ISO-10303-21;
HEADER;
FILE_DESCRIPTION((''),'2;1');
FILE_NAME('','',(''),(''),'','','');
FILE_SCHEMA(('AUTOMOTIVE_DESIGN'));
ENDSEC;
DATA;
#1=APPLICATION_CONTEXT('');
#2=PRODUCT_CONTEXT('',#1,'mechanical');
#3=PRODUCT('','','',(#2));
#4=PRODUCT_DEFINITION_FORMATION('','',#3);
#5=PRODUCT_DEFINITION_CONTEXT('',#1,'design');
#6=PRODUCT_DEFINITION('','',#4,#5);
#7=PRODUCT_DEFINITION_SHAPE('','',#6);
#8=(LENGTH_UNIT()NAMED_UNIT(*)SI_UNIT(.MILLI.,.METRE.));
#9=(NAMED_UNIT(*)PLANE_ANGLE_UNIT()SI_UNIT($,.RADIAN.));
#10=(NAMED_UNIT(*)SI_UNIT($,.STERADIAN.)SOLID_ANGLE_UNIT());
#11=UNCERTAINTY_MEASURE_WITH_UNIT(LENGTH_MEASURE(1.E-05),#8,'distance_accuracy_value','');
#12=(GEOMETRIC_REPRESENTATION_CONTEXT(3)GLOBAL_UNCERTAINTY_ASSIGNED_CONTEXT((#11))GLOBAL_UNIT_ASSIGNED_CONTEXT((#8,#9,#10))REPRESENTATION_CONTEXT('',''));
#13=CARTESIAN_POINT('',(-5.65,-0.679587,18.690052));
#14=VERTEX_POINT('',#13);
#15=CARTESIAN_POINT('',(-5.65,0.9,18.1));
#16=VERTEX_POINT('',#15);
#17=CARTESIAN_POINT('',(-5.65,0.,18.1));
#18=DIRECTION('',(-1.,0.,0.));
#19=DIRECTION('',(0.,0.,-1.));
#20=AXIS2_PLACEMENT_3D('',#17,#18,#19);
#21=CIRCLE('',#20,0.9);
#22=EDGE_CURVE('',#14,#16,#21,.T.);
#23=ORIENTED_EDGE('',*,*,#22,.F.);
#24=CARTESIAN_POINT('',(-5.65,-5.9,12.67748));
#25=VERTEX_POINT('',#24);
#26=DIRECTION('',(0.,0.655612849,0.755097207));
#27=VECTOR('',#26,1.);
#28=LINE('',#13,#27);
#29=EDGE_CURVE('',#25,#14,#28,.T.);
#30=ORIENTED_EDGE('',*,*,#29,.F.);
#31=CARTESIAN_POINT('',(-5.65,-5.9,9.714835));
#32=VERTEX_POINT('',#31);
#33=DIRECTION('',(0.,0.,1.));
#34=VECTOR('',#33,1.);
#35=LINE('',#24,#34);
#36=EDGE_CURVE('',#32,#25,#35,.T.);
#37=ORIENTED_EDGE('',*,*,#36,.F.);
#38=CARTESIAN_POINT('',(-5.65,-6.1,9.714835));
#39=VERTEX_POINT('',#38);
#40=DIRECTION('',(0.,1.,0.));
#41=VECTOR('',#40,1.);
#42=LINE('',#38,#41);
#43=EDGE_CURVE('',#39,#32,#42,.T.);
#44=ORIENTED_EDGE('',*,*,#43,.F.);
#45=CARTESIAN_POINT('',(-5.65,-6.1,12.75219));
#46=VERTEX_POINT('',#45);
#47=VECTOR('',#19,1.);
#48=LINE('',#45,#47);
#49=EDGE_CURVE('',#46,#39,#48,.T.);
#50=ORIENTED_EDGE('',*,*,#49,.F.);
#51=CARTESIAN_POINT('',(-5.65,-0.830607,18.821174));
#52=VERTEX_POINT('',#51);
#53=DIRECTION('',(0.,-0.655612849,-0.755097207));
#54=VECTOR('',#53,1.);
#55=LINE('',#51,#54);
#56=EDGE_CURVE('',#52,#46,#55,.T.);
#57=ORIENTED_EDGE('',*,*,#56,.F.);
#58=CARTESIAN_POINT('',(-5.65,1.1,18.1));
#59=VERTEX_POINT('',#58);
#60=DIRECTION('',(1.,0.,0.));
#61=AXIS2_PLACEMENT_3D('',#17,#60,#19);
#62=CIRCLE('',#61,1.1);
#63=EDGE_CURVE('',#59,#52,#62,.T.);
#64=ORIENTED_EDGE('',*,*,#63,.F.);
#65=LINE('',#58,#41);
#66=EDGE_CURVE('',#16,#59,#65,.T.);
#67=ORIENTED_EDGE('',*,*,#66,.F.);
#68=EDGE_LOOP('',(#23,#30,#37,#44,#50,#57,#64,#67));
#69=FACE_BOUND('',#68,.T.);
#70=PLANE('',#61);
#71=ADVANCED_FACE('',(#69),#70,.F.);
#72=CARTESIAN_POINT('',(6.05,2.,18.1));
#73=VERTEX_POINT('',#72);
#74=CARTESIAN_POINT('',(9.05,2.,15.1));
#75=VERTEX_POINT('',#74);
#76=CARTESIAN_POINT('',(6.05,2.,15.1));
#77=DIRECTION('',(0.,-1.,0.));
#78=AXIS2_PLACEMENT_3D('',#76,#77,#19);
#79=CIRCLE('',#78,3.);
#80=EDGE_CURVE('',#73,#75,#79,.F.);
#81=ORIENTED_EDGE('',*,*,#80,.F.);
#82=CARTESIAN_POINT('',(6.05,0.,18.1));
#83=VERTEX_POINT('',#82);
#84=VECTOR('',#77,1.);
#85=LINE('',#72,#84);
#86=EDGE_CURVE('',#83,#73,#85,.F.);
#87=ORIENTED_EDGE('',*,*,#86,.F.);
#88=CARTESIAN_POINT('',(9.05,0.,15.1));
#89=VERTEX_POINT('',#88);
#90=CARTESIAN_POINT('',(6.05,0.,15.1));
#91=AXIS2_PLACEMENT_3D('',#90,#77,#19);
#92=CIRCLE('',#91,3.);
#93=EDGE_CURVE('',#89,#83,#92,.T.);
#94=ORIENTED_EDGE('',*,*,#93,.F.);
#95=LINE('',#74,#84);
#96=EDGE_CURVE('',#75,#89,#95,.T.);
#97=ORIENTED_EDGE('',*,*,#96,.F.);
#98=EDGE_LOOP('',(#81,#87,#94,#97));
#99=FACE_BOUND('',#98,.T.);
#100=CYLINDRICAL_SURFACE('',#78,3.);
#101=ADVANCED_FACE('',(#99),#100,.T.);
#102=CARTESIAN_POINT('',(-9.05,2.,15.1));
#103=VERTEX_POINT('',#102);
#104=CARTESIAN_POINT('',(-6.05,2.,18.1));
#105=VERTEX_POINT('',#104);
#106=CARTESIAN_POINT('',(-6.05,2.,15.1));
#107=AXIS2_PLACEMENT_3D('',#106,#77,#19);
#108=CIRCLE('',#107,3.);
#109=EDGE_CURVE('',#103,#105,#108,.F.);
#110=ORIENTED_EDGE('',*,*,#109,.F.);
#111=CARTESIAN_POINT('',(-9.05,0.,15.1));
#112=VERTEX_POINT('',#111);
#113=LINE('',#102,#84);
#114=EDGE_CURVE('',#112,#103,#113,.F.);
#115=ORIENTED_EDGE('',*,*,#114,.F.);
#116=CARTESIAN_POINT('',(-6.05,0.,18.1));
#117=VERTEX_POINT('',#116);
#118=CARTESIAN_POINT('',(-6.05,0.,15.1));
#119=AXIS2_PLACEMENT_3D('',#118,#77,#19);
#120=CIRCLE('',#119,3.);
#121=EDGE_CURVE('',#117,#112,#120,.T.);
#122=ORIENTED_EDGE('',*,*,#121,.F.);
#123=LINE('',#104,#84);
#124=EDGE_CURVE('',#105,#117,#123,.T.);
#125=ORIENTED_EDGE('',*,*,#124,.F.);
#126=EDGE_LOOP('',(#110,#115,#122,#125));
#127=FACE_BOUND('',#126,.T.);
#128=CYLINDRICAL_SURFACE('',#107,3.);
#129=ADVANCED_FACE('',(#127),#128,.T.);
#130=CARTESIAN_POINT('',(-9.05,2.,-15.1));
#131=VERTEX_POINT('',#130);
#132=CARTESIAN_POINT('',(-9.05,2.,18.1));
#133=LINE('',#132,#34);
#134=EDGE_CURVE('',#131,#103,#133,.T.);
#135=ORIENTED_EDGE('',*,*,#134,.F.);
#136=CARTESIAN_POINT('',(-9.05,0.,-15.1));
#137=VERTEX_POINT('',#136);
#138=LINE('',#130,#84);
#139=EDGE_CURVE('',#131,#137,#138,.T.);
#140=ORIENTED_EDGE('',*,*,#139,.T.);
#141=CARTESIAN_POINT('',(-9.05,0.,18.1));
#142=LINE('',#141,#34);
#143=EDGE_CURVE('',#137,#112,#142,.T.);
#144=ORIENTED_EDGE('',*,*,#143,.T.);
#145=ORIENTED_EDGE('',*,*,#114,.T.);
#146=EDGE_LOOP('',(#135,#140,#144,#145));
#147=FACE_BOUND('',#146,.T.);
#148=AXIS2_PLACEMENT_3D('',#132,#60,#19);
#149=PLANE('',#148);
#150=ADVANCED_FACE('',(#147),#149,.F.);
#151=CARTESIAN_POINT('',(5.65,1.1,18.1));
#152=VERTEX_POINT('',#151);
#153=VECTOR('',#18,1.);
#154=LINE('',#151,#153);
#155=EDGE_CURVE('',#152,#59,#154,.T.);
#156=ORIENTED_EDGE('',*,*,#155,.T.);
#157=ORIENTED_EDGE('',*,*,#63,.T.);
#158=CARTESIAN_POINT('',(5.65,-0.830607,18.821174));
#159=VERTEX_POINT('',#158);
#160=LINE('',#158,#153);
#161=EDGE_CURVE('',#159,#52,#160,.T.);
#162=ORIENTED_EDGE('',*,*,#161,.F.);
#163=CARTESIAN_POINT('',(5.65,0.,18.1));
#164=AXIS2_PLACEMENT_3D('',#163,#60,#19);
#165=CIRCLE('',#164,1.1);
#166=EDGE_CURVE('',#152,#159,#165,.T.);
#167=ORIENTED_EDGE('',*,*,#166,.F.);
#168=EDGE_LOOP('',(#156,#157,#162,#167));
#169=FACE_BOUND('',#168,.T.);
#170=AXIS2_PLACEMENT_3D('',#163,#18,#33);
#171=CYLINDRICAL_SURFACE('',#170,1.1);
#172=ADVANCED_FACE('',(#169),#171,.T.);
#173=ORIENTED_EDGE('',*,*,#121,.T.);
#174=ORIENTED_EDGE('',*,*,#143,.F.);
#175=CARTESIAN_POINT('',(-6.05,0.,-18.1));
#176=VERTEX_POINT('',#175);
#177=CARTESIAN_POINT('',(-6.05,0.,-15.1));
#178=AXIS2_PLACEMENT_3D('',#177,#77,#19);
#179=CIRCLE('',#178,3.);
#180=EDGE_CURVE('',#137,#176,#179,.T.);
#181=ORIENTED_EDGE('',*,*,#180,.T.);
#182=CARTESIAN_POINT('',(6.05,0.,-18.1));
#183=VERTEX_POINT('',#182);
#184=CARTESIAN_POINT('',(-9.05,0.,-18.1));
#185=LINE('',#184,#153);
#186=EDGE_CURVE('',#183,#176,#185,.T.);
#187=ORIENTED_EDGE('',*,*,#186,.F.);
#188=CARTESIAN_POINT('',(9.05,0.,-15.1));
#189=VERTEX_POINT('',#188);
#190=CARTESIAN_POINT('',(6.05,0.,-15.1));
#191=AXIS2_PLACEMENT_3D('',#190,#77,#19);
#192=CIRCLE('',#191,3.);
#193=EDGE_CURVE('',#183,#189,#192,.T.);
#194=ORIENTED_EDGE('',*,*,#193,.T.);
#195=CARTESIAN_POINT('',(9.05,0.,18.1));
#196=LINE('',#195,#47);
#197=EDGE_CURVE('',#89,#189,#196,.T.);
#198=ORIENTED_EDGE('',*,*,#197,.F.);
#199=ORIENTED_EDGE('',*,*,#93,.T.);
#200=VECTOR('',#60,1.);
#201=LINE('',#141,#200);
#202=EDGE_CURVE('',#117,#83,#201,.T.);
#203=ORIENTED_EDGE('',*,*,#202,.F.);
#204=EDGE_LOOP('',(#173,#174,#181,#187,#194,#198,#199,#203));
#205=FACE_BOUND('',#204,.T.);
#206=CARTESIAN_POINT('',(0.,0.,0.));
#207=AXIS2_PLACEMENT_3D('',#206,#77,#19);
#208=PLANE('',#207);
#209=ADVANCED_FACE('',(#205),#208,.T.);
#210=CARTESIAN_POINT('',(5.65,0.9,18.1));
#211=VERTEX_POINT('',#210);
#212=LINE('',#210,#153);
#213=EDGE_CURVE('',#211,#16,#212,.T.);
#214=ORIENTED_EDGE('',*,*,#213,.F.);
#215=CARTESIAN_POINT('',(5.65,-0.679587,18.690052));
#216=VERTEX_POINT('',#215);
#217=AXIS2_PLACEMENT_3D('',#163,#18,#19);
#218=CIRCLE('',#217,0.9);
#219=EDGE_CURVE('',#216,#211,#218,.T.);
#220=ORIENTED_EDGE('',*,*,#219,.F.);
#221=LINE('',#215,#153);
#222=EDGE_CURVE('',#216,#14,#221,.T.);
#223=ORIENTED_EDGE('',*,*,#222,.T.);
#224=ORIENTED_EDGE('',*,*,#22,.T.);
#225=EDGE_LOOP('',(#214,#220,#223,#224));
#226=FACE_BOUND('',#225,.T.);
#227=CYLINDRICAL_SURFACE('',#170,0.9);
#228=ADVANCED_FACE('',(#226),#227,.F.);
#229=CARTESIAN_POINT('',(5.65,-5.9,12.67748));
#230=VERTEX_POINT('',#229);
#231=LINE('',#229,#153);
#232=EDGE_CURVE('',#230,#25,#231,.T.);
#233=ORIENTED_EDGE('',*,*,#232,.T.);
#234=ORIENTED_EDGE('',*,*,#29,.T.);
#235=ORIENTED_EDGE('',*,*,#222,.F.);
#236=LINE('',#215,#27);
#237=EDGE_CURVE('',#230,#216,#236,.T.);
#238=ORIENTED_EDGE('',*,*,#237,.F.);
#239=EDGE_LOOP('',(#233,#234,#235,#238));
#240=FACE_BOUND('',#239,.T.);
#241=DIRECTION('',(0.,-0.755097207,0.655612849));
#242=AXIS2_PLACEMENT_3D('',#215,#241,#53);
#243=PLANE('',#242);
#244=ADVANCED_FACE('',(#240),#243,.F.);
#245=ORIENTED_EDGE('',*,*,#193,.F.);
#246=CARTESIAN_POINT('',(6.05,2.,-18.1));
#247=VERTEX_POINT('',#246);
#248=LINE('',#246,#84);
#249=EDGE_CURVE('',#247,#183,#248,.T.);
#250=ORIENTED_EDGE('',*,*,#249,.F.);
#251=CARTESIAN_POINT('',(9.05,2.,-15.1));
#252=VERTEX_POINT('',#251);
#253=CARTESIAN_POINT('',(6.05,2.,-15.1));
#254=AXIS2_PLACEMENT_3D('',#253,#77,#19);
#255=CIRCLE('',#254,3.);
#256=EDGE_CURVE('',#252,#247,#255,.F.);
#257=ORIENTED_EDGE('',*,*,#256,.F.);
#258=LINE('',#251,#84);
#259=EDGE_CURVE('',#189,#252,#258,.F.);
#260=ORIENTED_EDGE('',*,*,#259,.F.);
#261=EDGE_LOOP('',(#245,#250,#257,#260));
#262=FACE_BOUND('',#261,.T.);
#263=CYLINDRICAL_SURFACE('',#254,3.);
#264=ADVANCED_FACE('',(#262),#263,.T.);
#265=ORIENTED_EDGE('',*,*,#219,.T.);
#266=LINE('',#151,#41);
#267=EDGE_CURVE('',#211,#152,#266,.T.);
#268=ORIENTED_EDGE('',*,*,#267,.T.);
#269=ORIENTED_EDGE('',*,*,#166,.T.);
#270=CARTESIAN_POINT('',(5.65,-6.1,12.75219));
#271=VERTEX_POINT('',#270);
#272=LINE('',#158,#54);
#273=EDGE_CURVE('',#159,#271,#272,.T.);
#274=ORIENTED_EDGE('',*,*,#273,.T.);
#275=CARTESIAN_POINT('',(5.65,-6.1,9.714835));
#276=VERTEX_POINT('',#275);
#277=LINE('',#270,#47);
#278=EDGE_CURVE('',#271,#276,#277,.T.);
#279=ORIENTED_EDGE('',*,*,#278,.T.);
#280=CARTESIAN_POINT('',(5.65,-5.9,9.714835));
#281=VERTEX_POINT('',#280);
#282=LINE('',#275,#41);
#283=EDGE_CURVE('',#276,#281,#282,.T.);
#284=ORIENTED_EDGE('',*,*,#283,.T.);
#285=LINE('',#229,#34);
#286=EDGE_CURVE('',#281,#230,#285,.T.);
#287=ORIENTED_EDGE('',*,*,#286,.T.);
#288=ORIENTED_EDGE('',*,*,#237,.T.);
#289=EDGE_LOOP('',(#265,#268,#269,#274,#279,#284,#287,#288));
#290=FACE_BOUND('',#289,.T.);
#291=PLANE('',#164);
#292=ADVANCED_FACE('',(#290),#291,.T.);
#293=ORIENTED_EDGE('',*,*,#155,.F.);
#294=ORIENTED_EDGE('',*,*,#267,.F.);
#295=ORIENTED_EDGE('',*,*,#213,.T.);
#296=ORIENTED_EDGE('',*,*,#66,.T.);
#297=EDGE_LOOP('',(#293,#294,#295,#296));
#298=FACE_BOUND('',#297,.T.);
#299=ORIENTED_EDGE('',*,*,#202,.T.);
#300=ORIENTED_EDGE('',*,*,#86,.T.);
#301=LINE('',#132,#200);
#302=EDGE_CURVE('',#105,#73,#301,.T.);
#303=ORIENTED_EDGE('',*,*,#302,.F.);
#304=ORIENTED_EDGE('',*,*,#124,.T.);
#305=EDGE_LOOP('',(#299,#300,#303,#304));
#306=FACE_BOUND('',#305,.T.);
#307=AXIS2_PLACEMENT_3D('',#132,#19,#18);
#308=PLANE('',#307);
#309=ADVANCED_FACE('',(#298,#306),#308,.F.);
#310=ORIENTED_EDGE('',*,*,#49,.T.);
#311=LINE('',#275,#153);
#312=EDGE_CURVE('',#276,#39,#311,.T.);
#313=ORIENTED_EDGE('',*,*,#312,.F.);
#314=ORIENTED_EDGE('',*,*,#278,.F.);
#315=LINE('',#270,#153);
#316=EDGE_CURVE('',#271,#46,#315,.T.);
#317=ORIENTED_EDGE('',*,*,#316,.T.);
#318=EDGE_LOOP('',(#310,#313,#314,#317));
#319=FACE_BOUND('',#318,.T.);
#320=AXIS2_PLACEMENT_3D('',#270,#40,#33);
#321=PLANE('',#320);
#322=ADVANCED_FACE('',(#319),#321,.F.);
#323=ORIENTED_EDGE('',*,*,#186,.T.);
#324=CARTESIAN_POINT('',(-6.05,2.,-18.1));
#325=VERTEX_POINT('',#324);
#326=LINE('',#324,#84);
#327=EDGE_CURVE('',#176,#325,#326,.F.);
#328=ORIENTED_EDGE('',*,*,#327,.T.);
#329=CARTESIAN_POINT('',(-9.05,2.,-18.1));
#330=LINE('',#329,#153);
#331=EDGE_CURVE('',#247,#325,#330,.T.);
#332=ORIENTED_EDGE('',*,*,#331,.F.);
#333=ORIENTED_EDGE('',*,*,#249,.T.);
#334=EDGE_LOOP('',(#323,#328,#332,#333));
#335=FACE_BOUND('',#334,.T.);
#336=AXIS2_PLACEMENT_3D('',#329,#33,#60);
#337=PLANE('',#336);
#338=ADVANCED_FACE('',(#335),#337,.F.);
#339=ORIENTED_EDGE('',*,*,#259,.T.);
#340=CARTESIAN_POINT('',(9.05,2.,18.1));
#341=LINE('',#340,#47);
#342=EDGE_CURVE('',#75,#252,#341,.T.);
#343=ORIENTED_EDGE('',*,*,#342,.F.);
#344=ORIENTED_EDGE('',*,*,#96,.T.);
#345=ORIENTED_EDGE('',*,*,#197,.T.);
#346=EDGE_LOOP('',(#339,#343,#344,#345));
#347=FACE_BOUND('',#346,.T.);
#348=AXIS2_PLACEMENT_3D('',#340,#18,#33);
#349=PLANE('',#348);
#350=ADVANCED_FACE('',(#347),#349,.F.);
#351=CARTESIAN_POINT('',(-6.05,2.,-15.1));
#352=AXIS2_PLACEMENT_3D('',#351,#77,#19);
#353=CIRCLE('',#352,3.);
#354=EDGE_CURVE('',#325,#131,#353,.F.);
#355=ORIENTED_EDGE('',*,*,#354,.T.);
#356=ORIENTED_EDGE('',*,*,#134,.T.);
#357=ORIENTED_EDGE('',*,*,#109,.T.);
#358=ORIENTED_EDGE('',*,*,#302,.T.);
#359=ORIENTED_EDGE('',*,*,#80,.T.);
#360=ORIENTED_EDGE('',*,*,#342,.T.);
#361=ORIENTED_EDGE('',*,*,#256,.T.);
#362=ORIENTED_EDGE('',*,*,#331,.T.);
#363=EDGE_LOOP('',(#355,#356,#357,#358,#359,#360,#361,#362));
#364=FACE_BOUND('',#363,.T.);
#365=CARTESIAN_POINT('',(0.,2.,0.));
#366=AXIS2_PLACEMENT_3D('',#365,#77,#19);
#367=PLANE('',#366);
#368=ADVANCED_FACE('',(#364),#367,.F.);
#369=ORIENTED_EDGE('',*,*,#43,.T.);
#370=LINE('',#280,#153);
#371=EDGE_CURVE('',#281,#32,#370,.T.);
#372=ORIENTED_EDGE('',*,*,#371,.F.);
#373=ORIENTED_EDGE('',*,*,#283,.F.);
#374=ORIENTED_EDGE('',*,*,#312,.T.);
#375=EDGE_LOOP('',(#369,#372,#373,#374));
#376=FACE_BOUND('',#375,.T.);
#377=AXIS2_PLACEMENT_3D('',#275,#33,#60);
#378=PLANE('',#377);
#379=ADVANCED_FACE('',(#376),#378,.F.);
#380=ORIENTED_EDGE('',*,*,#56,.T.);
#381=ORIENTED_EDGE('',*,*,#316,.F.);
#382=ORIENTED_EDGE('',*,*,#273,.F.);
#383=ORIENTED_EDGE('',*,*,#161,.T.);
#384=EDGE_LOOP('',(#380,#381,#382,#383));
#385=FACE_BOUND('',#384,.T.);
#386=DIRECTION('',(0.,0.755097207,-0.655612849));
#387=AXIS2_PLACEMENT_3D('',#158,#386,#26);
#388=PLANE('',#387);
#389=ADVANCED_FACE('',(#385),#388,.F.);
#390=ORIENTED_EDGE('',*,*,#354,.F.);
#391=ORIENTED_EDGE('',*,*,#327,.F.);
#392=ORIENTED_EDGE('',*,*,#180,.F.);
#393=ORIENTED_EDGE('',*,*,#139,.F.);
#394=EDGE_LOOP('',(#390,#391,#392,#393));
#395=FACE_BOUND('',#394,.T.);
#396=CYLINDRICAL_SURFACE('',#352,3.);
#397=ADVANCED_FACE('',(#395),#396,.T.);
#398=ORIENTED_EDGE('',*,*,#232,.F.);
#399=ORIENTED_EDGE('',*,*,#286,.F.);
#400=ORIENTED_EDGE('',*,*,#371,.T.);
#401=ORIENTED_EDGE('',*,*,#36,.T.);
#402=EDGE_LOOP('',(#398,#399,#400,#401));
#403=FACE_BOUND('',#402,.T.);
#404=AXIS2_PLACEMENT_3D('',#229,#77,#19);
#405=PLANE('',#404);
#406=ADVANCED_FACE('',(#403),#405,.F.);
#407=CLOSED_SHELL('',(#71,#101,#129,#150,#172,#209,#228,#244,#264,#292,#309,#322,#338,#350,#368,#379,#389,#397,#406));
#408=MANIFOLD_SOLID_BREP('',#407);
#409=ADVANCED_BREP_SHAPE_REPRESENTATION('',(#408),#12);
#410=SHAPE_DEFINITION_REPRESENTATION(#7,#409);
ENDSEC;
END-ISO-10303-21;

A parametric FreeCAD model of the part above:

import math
import FreeCAD as App
import Part
import Sketcher
from FreeCAD import Vector
Q = App.Units.Quantity


def edges_at(feature, points):
    """Names of the edges that pass closest to the given points."""
    edges = feature.Shape.Edges
    near = lambda p: min(range(len(edges)), key=lambda i: edges[i].distToShape(Part.Vertex(*p))[0])
    return sorted({f"Edge{near(p) + 1}" for p in points})


def add_polygon(sketch, points):
    """Adds a closed chain of lines whose ends are joined by coincident constraints."""
    first, n = sketch.GeometryCount, len(points)
    for a, b in zip(points, points[1:] + points[:1]):
        sketch.addGeometry(Part.LineSegment(App.Vector(*a, 0), App.Vector(*b, 0)), False)
    for i in range(n):
        sketch.addConstraint(Sketcher.Constraint("Coincident", first + i, 2, first + (i + 1) % n, 1))

doc = App.newDocument("Part")
body = doc.addObject("PartDesign::Body", "Body")

sketch1 = doc.addObject("Sketcher::SketchObject", "Sketch")
body.addObject(sketch1)
sketch1.AttachmentSupport = (doc.XZ_Plane, [""])
sketch1.MapMode = "FlatFace"
add_polygon(sketch1, [(-9, -18), (-9, 18), (9, 18), (9, -18)])
sketch1.addConstraint(Sketcher.Constraint("Vertical", 0))
sketch1.addConstraint(Sketcher.Constraint("Horizontal", 1))
sketch1.addConstraint(Sketcher.Constraint("Vertical", 2))
sketch1.addConstraint(Sketcher.Constraint("Horizontal", 3))
sketch1.addConstraint(Sketcher.Constraint("Symmetric", 0, 2, 2, 2, -1, 1))
sketch1.addConstraint(Sketcher.Constraint("DistanceX", 1, 1, 1, 2, Q("18.1 mm")))
sketch1.addConstraint(Sketcher.Constraint("DistanceY", 0, 1, 0, 2, Q("36.2 mm")))
pad1 = doc.addObject("PartDesign::Pad", "Pad")
body.addObject(pad1)
pad1.Profile = sketch1
pad1.Length = 2
pad1.Reversed = True
doc.recompute()

fillet = doc.addObject("PartDesign::Fillet", "Fillet")
body.addObject(fillet)
fillet.Base = (pad1, edges_at(pad1, [
    (9.05, 1, 18.1),
    (-9.05, 1, 18.1),
    (-9.05, 1, -18.1),
    (9.05, 1, -18.1),
]))
fillet.Radius = 3

sketch2 = doc.addObject("Sketcher::SketchObject", "Sketch001")
body.addObject(sketch2)
sketch2.AttachmentSupport = (doc.YZ_Plane, [""])
sketch2.MapMode = "FlatFace"
sketch2.addGeometry(Part.LineSegment(Vector(-0.830607, 18.821174, 0), Vector(-6.1, 12.75219, 0)), False)
sketch2.addGeometry(Part.LineSegment(Vector(-6.1, 12.75219, 0), Vector(-6.1, 9.714835, 0)), False)
sketch2.addGeometry(Part.LineSegment(Vector(-6.1, 9.714835, 0), Vector(-5.9, 9.714835, 0)), False)
sketch2.addGeometry(Part.LineSegment(Vector(-5.9, 9.714835, 0), Vector(-5.9, 12.67748, 0)), False)
sketch2.addGeometry(Part.LineSegment(Vector(-5.9, 12.67748, 0), Vector(-0.679587, 18.690052, 0)), False)
sketch2.addGeometry(Part.ArcOfCircle(Part.Circle(Vector(0, 18.1, 0), Vector(0, 0, 1), 0.9), math.radians(0), math.radians(139.033864)), False)
sketch2.addGeometry(Part.LineSegment(Vector(0.9, 18.1, 0), Vector(1.1, 18.1, 0)), False)
sketch2.addGeometry(Part.ArcOfCircle(Part.Circle(Vector(0, 18.1, 0), Vector(0, 0, 1), 1.1), math.radians(0), math.radians(139.033864)), False)
sketch2.addConstraint(Sketcher.Constraint("Coincident", 0, 2, 1, 1))
sketch2.addConstraint(Sketcher.Constraint("Coincident", 1, 2, 2, 1))
sketch2.addConstraint(Sketcher.Constraint("Coincident", 2, 2, 3, 1))
sketch2.addConstraint(Sketcher.Constraint("Coincident", 3, 2, 4, 1))
sketch2.addConstraint(Sketcher.Constraint("Coincident", 4, 2, 5, 2))
sketch2.addConstraint(Sketcher.Constraint("Coincident", 5, 1, 6, 1))
sketch2.addConstraint(Sketcher.Constraint("Coincident", 6, 2, 7, 1))
sketch2.addConstraint(Sketcher.Constraint("Coincident", 7, 2, 0, 1))
sketch2.addConstraint(Sketcher.Constraint("Vertical", 1))
sketch2.addConstraint(Sketcher.Constraint("Horizontal", 2))
sketch2.addConstraint(Sketcher.Constraint("Vertical", 3))
sketch2.addConstraint(Sketcher.Constraint("Horizontal", 6))
sketch2.addConstraint(Sketcher.Constraint("Coincident", 7, 3, 5, 3))
sketch2.addConstraint(Sketcher.Constraint("PointOnObject", 5, 3, -2))
sketch2.addConstraint(Sketcher.Constraint("Radius", 5, Q("0.9 mm")))
sketch2.addConstraint(Sketcher.Constraint("Radius", 7, Q("1.1 mm")))
sketch2.addConstraint(Sketcher.Constraint("DistanceX", 2, 1, 2, 2, Q("0.2 mm")))
sketch2.addConstraint(Sketcher.Constraint("DistanceX", 0, 2, 5, 1, Q("7 mm")))
sketch2.addConstraint(Sketcher.Constraint("DistanceY", -1, 1, 5, 3, Q("18.1 mm")))
sketch2.addConstraint(Sketcher.Constraint("DistanceY", -1, 1, 5, 1, Q("18.1 mm")))
sketch2.addConstraint(Sketcher.Constraint("DistanceY", 1, 2, 1, 1, Q("3.037355 mm")))
sketch2.addConstraint(Sketcher.Constraint("DistanceY", 3, 1, 3, 2, Q("2.962645 mm")))
sketch2.addConstraint(Sketcher.Constraint("DistanceY", -1, 1, 0, 2, Q("12.75219 mm")))
sketch2.addConstraint(Sketcher.Constraint("DistanceY", -1, 1, 4, 2, Q("18.690052 mm")))
sketch2.addConstraint(Sketcher.Constraint("DistanceX", 7, 2, 4, 2, Q("0.151019 mm")))
pad2 = doc.addObject("PartDesign::Pad", "Pad001")
body.addObject(pad2)
pad2.Profile = sketch2
pad2.Length = 11.3
pad2.Midplane = True

doc.recompute()
